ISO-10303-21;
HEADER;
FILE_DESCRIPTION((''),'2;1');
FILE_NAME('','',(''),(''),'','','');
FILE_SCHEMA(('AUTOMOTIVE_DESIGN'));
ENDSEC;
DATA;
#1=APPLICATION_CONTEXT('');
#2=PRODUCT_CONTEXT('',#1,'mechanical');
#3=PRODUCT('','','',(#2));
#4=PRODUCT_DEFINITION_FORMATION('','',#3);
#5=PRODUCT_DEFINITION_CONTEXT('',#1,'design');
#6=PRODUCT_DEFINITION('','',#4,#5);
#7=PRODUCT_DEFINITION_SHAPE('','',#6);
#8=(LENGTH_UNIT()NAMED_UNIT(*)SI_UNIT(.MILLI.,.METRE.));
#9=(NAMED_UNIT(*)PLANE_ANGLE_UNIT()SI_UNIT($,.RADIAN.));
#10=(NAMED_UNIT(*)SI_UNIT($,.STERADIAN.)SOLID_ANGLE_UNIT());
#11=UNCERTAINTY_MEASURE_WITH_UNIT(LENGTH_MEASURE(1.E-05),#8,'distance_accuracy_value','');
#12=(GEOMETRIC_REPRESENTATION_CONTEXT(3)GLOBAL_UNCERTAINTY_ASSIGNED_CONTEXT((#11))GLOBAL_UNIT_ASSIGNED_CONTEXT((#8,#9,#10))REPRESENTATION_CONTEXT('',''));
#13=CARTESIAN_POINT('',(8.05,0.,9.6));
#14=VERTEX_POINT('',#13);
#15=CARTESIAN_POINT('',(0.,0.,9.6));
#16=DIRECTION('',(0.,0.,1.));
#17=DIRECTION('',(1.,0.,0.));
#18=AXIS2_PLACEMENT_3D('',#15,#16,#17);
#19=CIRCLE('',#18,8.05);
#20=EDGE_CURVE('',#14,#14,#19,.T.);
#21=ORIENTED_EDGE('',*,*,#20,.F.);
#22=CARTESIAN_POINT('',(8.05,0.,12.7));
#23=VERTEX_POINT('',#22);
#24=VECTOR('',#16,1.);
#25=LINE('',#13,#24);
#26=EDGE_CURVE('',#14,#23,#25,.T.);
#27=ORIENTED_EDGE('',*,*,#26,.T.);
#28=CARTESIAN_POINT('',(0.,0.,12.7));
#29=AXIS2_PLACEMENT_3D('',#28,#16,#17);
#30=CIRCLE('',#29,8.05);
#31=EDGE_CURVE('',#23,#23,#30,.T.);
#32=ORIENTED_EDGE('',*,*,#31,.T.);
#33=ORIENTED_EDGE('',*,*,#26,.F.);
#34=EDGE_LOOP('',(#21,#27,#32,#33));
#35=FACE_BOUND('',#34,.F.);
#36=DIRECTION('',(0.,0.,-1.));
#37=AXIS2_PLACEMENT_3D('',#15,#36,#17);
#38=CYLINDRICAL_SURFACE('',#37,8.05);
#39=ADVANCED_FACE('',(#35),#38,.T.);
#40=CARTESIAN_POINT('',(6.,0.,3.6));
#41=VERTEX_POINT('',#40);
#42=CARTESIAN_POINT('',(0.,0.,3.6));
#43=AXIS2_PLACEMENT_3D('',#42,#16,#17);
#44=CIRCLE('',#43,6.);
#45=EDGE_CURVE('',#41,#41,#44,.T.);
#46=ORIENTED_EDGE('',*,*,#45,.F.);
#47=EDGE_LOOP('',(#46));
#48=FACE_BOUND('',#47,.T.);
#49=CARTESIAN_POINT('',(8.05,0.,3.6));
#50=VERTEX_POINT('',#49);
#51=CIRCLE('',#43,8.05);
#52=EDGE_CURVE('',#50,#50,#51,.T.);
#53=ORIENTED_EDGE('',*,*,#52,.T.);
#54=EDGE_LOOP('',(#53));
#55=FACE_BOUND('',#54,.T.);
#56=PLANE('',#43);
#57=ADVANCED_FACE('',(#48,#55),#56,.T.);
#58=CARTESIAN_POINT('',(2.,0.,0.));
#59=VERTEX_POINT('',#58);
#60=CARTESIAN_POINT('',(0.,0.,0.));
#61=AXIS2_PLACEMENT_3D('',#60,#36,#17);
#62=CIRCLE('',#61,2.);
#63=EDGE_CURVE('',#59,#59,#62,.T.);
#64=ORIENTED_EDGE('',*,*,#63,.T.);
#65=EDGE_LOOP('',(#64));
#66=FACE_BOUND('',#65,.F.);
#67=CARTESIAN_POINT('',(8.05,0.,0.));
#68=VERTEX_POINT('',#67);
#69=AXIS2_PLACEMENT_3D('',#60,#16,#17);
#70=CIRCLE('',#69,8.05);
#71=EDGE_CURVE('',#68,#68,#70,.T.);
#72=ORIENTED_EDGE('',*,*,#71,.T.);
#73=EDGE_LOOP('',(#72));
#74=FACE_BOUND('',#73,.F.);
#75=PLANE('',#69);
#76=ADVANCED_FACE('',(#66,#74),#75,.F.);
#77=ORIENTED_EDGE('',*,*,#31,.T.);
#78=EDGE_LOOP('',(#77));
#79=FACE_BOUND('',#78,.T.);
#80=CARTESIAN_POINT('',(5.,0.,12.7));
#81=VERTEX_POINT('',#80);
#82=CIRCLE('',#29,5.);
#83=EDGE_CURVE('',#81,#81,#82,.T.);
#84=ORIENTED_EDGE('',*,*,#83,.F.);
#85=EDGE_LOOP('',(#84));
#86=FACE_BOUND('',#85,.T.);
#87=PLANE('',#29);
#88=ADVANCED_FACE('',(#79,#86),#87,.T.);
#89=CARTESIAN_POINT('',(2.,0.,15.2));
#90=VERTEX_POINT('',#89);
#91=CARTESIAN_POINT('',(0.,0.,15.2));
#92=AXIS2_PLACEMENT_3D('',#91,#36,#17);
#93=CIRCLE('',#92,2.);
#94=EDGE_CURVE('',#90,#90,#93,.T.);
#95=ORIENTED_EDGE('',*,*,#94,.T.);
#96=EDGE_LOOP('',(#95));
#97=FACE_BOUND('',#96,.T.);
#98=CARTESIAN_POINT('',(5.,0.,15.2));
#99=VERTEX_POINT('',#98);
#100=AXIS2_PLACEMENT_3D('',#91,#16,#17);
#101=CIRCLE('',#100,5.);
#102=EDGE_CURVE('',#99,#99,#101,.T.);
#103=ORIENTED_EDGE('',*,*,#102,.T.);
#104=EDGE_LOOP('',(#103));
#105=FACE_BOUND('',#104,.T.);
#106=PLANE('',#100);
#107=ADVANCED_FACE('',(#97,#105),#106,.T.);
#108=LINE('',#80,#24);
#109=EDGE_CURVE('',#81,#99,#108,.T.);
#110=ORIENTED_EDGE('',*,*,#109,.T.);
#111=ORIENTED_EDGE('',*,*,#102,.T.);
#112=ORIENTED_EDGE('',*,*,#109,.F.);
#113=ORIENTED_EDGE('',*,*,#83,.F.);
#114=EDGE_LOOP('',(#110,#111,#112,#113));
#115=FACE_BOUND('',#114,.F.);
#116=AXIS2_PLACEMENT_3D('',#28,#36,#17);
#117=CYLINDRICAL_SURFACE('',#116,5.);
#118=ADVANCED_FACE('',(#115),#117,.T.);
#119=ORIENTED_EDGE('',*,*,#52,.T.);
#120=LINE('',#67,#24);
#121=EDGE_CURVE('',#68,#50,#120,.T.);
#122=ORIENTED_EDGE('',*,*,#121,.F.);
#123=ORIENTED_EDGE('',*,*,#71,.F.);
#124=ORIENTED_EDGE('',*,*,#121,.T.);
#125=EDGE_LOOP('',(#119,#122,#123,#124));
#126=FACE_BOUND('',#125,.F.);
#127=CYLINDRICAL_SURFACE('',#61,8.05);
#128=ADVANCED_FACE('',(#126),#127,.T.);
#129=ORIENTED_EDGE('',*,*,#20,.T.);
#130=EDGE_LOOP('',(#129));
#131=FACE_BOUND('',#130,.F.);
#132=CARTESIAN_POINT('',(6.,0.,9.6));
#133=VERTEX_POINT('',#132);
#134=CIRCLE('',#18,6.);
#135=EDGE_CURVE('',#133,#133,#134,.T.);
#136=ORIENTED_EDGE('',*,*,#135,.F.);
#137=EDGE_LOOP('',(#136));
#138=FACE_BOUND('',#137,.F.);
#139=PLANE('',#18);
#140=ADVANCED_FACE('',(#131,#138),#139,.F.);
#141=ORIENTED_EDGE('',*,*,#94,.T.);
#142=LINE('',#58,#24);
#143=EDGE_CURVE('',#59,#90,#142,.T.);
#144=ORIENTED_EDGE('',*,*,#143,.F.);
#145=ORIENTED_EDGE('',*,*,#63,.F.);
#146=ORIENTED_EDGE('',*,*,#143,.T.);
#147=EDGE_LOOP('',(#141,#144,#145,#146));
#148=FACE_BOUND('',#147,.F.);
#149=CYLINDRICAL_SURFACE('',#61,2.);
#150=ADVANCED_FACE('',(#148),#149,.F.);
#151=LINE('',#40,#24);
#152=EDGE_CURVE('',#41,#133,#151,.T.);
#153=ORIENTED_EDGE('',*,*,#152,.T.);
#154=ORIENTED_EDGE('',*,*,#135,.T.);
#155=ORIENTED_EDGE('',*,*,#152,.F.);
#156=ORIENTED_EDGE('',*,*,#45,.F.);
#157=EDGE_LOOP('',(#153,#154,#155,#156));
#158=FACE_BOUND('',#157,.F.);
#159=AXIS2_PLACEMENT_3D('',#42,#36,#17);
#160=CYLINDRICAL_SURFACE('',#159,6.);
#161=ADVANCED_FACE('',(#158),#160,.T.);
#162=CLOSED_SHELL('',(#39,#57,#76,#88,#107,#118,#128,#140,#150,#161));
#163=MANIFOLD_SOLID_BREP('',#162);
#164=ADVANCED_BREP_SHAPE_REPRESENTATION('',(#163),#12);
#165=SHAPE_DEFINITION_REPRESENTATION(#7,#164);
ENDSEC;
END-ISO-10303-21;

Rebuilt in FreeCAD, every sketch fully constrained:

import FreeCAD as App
import Part
import Sketcher

doc = App.newDocument("Part")
body = doc.addObject("PartDesign::Body", "Body")

# Sketch on XY plane
sketch1 = body.newObject("Sketcher::SketchObject", "Sketch")
sketch1.AttachmentSupport = (doc.getObject("XY_Plane"), [""])
sketch1.MapMode = "FlatFace"
sketch1.addGeometry(Part.Circle(App.Vector(0, 0, 0), App.Vector(0, 0, 1), 8), False)
sketch1.addConstraint([
    Sketcher.Constraint("Coincident", 0, 3, -1, 1),
    Sketcher.Constraint("Diameter", 0, 16.1),
])
pad1 = body.newObject("PartDesign::Pad", "Pad")
pad1.Profile = sketch1
pad1.Length = 3.6

# Sketch on XY plane
sketch2 = body.newObject("Sketcher::SketchObject", "Sketch001")
sketch2.AttachmentSupport = (doc.getObject("XY_Plane"), [""])
sketch2.MapMode = "FlatFace"
sketch2.AttachmentOffset = App.Placement(App.Vector(0, 0, 3.6), App.Rotation())
sketch2.addGeometry(Part.Circle(App.Vector(0, 0, 0), App.Vector(0, 0, 1), 6), False)
sketch2.addConstraint([
    Sketcher.Constraint("Coincident", 0, 3, -1, 1),
    Sketcher.Constraint("Diameter", 0, 12.0),
])
pad2 = body.newObject("PartDesign::Pad", "Pad001")
pad2.Profile = sketch2
pad2.Length = 6

# Sketch on XY plane
sketch3 = body.newObject("Sketcher::SketchObject", "Sketch002")
sketch3.AttachmentSupport = (doc.getObject("XY_Plane"), [""])
sketch3.MapMode = "FlatFace"
sketch3.AttachmentOffset = App.Placement(App.Vector(0, 0, 9.6), App.Rotation())
sketch3.addGeometry(Part.Circle(App.Vector(0, 0, 0), App.Vector(0, 0, 1), 8), False)
sketch3.addConstraint([
    Sketcher.Constraint("Coincident", 0, 3, -1, 1),
    Sketcher.Constraint("Diameter", 0, 16.1),
])
pad3 = body.newObject("PartDesign::Pad", "Pad002")
pad3.Profile = sketch3
pad3.Length = 3.1

# Sketch on XY plane
sketch4 = body.newObject("Sketcher::SketchObject", "Sketch003")
sketch4.AttachmentSupport = (doc.getObject("XY_Plane"), [""])
sketch4.MapMode = "FlatFace"
sketch4.AttachmentOffset = App.Placement(App.Vector(0, 0, 12.7), App.Rotation())
sketch4.addGeometry(Part.Circle(App.Vector(0, 0, 0), App.Vector(0, 0, 1), 5), False)
sketch4.addConstraint([
    Sketcher.Constraint("Coincident", 0, 3, -1, 1),
    Sketcher.Constraint("Diameter", 0, 10.0),
])
pad4 = body.newObject("PartDesign::Pad", "Pad003")
pad4.Profile = sketch4
pad4.Length = 2.5

# Sketch on XY plane
sketch5 = body.newObject("Sketcher::SketchObject", "Sketch004")
sketch5.AttachmentSupport = (doc.getObject("XY_Plane"), [""])
sketch5.MapMode = "FlatFace"
sketch5.addGeometry(Part.Circle(App.Vector(0, 0, 0), App.Vector(0, 0, 1), 2), False)
sketch5.addConstraint([
    Sketcher.Constraint("Coincident", 0, 3, -1, 1),
    Sketcher.Constraint("Diameter", 0, 4.0),
])
pocket1 = body.newObject("PartDesign::Pocket", "Pocket")
pocket1.Profile = sketch5
pocket1.Type = "ThroughAll"
pocket1.Reversed = True

doc.recompute()
